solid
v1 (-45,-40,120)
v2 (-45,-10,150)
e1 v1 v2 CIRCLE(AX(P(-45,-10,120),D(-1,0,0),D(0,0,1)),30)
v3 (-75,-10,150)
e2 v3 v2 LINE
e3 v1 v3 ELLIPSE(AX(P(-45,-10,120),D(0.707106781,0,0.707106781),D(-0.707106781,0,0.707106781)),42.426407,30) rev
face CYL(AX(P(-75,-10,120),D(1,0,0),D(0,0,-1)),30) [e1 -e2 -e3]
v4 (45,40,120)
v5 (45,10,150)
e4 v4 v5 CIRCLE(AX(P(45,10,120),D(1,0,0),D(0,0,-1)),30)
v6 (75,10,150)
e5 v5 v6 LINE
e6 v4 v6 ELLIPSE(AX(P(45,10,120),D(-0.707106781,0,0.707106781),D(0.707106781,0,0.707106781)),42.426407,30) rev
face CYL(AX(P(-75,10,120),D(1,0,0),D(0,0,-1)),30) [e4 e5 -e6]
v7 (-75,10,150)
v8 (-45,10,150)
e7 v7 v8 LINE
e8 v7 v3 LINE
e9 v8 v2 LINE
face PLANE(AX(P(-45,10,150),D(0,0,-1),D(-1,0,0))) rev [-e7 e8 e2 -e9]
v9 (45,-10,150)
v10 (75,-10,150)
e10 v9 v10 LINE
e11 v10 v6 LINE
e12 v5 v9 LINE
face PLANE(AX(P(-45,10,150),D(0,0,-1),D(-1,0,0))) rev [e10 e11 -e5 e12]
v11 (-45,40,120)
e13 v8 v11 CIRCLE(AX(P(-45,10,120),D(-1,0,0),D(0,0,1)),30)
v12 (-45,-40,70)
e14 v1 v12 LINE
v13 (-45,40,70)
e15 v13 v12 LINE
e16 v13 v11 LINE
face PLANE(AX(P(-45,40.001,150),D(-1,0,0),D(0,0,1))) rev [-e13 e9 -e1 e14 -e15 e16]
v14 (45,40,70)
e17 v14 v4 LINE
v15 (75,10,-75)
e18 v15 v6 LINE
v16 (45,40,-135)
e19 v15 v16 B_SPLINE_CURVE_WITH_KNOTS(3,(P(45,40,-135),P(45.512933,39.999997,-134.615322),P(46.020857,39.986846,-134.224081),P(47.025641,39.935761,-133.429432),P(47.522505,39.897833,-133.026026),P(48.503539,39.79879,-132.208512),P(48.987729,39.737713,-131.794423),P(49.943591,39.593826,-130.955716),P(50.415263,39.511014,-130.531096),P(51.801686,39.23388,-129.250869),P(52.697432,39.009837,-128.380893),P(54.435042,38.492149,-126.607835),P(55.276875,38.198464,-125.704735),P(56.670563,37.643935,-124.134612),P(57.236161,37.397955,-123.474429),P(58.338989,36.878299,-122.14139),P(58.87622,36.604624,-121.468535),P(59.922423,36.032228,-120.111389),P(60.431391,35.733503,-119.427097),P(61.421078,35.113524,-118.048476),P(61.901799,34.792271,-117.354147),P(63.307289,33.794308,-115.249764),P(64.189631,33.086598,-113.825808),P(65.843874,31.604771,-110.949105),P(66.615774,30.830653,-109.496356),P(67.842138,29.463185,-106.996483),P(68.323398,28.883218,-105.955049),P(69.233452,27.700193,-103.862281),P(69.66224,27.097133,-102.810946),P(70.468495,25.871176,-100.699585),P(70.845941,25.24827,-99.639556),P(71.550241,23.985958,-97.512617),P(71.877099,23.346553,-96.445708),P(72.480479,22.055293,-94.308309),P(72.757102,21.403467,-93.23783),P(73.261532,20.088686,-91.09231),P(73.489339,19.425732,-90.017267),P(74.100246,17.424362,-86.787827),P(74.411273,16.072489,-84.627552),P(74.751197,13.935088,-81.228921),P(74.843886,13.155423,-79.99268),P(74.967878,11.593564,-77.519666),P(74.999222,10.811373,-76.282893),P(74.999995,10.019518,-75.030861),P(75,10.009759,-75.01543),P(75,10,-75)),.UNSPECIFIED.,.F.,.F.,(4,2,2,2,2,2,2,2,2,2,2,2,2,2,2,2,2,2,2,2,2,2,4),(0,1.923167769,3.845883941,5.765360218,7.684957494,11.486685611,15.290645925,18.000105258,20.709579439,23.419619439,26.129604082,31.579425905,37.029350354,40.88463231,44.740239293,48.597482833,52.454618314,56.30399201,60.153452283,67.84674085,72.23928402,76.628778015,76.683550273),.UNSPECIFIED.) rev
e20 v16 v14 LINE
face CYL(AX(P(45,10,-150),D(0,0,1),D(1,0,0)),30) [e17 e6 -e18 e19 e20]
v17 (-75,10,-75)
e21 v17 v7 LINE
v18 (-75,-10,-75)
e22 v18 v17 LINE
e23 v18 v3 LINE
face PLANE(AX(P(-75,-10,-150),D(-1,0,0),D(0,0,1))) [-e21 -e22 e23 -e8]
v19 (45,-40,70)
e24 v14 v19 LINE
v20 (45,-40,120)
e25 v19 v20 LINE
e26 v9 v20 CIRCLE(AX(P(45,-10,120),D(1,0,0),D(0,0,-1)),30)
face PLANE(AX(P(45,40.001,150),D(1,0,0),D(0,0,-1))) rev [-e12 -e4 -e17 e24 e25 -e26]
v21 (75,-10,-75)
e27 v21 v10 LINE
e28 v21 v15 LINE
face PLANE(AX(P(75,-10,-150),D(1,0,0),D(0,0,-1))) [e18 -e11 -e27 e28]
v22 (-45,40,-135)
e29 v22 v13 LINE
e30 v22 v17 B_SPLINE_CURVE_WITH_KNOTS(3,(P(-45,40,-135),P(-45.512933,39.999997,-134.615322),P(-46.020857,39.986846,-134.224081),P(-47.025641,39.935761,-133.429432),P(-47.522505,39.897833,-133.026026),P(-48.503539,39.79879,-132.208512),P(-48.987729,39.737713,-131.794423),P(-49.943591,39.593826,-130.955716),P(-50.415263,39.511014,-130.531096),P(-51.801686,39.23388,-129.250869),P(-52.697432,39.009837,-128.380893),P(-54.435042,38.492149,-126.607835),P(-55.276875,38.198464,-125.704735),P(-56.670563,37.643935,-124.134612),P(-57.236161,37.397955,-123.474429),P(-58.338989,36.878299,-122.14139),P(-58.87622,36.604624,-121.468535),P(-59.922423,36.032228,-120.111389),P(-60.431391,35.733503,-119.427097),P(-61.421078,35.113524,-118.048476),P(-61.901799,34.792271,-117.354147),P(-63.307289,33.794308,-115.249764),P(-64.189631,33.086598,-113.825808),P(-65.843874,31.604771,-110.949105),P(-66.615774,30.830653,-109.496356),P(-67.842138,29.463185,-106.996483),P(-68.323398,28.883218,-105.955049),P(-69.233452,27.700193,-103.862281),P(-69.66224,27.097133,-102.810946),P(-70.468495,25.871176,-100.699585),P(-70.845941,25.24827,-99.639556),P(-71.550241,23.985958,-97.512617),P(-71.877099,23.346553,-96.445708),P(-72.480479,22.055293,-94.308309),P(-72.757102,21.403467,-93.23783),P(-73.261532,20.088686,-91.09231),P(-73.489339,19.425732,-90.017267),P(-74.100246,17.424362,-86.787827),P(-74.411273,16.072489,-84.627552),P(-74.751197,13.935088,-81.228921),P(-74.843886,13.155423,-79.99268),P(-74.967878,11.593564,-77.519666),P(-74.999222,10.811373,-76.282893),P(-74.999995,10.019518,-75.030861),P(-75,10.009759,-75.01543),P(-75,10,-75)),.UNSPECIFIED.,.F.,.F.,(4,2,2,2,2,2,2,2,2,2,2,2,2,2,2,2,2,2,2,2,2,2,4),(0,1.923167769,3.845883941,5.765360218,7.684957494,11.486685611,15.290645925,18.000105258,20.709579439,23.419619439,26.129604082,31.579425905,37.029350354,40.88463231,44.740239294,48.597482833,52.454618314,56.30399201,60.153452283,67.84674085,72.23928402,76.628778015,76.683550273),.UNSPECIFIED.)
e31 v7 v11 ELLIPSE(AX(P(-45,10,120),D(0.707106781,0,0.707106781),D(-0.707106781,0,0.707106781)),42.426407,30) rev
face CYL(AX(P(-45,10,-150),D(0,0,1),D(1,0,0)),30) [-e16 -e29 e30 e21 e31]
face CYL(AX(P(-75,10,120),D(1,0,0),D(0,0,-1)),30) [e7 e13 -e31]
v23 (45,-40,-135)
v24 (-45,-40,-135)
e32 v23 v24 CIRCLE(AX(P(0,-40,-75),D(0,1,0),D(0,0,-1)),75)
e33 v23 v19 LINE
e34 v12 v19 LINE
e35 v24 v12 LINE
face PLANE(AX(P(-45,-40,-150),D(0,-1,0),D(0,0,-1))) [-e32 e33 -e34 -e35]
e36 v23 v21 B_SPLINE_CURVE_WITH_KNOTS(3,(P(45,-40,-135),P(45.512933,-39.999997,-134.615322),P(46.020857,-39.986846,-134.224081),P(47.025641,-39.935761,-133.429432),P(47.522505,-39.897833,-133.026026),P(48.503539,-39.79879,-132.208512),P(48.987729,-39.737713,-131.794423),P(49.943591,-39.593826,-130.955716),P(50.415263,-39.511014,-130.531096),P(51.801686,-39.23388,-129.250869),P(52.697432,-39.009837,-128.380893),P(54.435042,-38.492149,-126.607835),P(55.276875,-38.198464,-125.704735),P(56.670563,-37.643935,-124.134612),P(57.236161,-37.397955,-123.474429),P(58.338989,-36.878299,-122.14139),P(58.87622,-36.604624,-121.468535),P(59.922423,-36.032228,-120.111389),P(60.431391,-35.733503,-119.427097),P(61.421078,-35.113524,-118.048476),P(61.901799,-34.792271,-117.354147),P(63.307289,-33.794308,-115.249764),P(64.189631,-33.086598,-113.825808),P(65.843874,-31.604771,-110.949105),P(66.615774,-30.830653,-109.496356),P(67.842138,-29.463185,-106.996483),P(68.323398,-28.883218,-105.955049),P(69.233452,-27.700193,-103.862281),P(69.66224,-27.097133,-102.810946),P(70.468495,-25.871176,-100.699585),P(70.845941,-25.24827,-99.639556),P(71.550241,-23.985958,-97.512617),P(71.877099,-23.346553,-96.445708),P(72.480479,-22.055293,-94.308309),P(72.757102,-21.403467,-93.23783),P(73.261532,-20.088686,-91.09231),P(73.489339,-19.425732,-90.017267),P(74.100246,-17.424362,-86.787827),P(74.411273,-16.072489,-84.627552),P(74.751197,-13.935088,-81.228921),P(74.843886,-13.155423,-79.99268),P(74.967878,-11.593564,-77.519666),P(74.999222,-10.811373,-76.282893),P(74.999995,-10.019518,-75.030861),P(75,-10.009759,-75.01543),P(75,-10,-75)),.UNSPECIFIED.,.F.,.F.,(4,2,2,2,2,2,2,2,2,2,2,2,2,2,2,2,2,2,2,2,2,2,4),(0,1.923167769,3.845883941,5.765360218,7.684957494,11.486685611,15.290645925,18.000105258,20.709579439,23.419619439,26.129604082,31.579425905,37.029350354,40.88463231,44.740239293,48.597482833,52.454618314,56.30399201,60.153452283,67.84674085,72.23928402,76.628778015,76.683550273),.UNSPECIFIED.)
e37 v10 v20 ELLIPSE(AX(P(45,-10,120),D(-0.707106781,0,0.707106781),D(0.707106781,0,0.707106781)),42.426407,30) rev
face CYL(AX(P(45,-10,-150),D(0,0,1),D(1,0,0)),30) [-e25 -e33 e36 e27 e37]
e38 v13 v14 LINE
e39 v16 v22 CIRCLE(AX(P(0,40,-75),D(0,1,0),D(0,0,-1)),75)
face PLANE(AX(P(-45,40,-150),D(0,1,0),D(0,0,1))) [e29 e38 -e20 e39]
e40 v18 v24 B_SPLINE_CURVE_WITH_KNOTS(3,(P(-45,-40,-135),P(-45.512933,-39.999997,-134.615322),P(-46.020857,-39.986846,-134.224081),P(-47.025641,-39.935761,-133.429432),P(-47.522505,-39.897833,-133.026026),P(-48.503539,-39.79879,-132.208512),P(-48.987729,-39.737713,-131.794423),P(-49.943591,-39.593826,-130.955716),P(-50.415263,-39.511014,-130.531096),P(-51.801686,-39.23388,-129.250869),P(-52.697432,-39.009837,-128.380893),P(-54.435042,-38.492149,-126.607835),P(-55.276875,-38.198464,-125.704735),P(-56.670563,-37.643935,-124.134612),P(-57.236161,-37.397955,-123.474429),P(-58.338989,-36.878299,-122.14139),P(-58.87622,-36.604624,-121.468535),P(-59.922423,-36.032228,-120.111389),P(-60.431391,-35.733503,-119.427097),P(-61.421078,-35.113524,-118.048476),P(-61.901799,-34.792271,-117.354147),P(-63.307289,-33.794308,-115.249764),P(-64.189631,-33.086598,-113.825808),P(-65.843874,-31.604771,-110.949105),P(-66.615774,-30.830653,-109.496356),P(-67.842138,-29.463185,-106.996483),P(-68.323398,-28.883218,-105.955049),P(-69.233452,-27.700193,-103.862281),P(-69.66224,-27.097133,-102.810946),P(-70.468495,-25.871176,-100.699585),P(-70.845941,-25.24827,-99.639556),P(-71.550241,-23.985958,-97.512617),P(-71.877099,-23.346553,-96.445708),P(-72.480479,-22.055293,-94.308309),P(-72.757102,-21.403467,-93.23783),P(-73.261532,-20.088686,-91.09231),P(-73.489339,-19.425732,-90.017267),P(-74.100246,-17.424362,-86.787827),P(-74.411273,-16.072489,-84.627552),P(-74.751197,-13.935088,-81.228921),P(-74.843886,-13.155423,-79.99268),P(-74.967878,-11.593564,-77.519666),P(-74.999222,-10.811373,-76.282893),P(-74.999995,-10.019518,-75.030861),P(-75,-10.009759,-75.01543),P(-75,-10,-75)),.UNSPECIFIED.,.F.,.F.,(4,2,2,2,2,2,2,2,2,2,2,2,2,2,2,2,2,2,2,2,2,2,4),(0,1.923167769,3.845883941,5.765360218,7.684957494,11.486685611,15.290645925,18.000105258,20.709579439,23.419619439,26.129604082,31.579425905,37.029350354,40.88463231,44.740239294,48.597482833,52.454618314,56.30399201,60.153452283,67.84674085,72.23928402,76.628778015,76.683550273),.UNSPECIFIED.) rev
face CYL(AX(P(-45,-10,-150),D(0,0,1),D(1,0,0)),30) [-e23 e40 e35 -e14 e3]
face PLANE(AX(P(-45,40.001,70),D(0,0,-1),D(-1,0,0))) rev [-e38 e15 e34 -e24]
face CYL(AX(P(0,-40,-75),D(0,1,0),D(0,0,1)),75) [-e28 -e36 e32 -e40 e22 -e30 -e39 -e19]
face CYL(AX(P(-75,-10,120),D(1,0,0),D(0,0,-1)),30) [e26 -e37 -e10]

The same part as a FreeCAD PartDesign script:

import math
import FreeCAD as App
import Part
import Sketcher

V = App.Vector
Q = App.Units.Quantity

doc = App.newDocument("Part")
body = doc.addObject("PartDesign::Body", "Body")

sketch1 = doc.addObject("Sketcher::SketchObject", "Sketch")
body.addObject(sketch1)
sketch1.AttachmentSupport = (doc.XY_Plane, [""])
sketch1.MapMode = "FlatFace"
sketch1.addGeometry([
    Part.LineSegment(V(-45, -40, 0), V(45, -40, 0)),
    Part.ArcOfCircle(Part.Circle(V(45, -10, 0), V(0, 0, 1), 30), math.radians(-90), math.radians(0)),
    Part.LineSegment(V(75, -10, 0), V(75, 10, 0)),
    Part.ArcOfCircle(Part.Circle(V(45, 10, 0), V(0, 0, 1), 30), math.radians(0), math.radians(90)),
    Part.LineSegment(V(45, 40, 0), V(-45, 40, 0)),
    Part.ArcOfCircle(Part.Circle(V(-45, 10, 0), V(0, 0, 1), 30), math.radians(90), math.radians(180)),
    Part.LineSegment(V(-75, 10, 0), V(-75, -10, 0)),
    Part.ArcOfCircle(Part.Circle(V(-45, -10, 0), V(0, 0, 1), 30), math.radians(180), math.radians(270)),
], False)
sketch1.addConstraint([
    Sketcher.Constraint("Tangent", 0, 2, 1, 1),
    Sketcher.Constraint("Tangent", 1, 2, 2, 1),
    Sketcher.Constraint("Tangent", 2, 2, 3, 1),
    Sketcher.Constraint("Tangent", 3, 2, 4, 1),
    Sketcher.Constraint("Tangent", 4, 2, 5, 1),
    Sketcher.Constraint("Tangent", 5, 2, 6, 1),
    Sketcher.Constraint("Tangent", 6, 2, 7, 1),
    Sketcher.Constraint("Tangent", 7, 2, 0, 1),
    Sketcher.Constraint("Horizontal", 0),
    Sketcher.Constraint("Vertical", 2),
    Sketcher.Constraint("Horizontal", 4),
    Sketcher.Constraint("Vertical", 6),
    Sketcher.Constraint("Equal", 1, 3),
    Sketcher.Constraint("Equal", 3, 5),
    Sketcher.Constraint("Equal", 5, 7),
    Sketcher.Constraint("Symmetric", 1, 3, 5, 3, -1, 1),
    Sketcher.Constraint("Radius", 1, Q("30 mm")),
    Sketcher.Constraint("DistanceX", 0, 1, 0, 2, Q("90 mm")),
    Sketcher.Constraint("DistanceY", 2, 1, 2, 2, Q("20 mm")),
])
pad1 = doc.addObject("PartDesign::Pad", "Pad")
body.addObject(pad1)
pad1.Profile = sketch1
pad1.Type = "TwoLengths"
pad1.Length = 150
pad1.Length2 = 150

sketch2 = doc.addObject("Sketcher::SketchObject", "Sketch001")
body.addObject(sketch2)
sketch2.AttachmentSupport = (doc.YZ_Plane, [""])
sketch2.MapMode = "FlatFace"
sketch2.AttachmentOffset = App.Placement(V(0, 0, 75), App.Rotation())
sketch2.addGeometry([
    Part.LineSegment(V(75, 185, 0), V(-75, 185, 0)),
    Part.LineSegment(V(-75, 185, 0), V(-75, -185, 0)),
    Part.LineSegment(V(-75, -185, 0), V(75, -185, 0)),
    Part.LineSegment(V(75, -185, 0), V(75, 185, 0)),
    Part.LineSegment(V(40, 120, 0), V(40, -150, 0)),
    Part.LineSegment(V(40, -150, 0), V(-40, -150, 0)),
    Part.LineSegment(V(-40, -150, 0), V(-40, 120, 0)),
    Part.ArcOfCircle(Part.Circle(V(-10, 120, 0), V(0, 0, 1), 30), math.radians(90), math.radians(180)),
    Part.LineSegment(V(-10, 150, 0), V(10, 150, 0)),
    Part.ArcOfCircle(Part.Circle(V(10, 120, 0), V(0, 0, 1), 30), math.radians(0), math.radians(90)),
], False)
sketch2.addConstraint([
    Sketcher.Constraint("Coincident", 0, 2, 1, 1),
    Sketcher.Constraint("Coincident", 1, 2, 2, 1),
    Sketcher.Constraint("Coincident", 2, 2, 3, 1),
    Sketcher.Constraint("Coincident", 3, 2, 0, 1),
    Sketcher.Constraint("Coincident", 4, 2, 5, 1),
    Sketcher.Constraint("Coincident", 5, 2, 6, 1),
    Sketcher.Constraint("Tangent", 6, 2, 7, 2),
    Sketcher.Constraint("Tangent", 7, 1, 8, 1),
    Sketcher.Constraint("Tangent", 8, 2, 9, 2),
    Sketcher.Constraint("Tangent", 9, 1, 4, 1),
    Sketcher.Constraint("Horizontal", 0),
    Sketcher.Constraint("Vertical", 1),
    Sketcher.Constraint("Horizontal", 2),
    Sketcher.Constraint("Vertical", 3),
    Sketcher.Constraint("Vertical", 4),
    Sketcher.Constraint("Horizontal", 5),
    Sketcher.Constraint("Vertical", 6),
    Sketcher.Constraint("Horizontal", 8),
    Sketcher.Constraint("Equal", 7, 9),
    Sketcher.Constraint("Symmetric", 0, 2, 2, 2, -1, 1),
    Sketcher.Constraint("Radius", 7, Q("30 mm")),
    Sketcher.Constraint("DistanceX", 5, 2, 5, 1, Q("80 mm")),
    Sketcher.Constraint("DistanceY", 4, 2, 4, 1, Q("270 mm")),
    Sketcher.Constraint("DistanceX", 7, 3, -1, 1, Q("10 mm")),
    Sketcher.Constraint("DistanceY", -1, 1, 7, 3, Q("120 mm")),
    Sketcher.Constraint("DistanceX", 0, 2, 0, 1, Q("150.964 mm")),
    Sketcher.Constraint("DistanceY", 1, 2, 1, 1, Q("370.964 mm")),
])
pocket1 = doc.addObject("PartDesign::Pocket", "Pocket")
body.addObject(pocket1)
pocket1.Profile = sketch2
pocket1.Length = 150

sketch3 = doc.addObject("Sketcher::SketchObject", "Sketch002")
body.addObject(sketch3)
sketch3.AttachmentSupport = (doc.XZ_Plane, [""])
sketch3.MapMode = "FlatFace"
sketch3.AttachmentOffset = App.Placement(V(0, 0, 40), App.Rotation())
sketch3.addGeometry([
    Part.LineSegment(V(45, 150, 0), V(-45, 150, 0)),
    Part.LineSegment(V(-45, 150, 0), V(-45, 70, 0)),
    Part.LineSegment(V(-45, 70, 0), V(45, 70, 0)),
    Part.LineSegment(V(45, 70, 0), V(45, 150, 0)),
], False)
sketch3.addConstraint([
    Sketcher.Constraint("Coincident", 0, 2, 1, 1),
    Sketcher.Constraint("Coincident", 1, 2, 2, 1),
    Sketcher.Constraint("Coincident", 2, 2, 3, 1),
    Sketcher.Constraint("Coincident", 3, 2, 0, 1),
    Sketcher.Constraint("Horizontal", 0),
    Sketcher.Constraint("Vertical", 1),
    Sketcher.Constraint("Horizontal", 2),
    Sketcher.Constraint("Vertical", 3),
    Sketcher.Constraint("DistanceX", 0, 2, 0, 1, Q("90 mm")),
    Sketcher.Constraint("DistanceY", 1, 2, 1, 1, Q("80 mm")),
    Sketcher.Constraint("DistanceX", 0, 2, -1, 1, Q("45 mm")),
    Sketcher.Constraint("DistanceY", -1, 1, 0, 2, Q("150 mm")),
])
pocket2 = doc.addObject("PartDesign::Pocket", "Pocket001")
body.addObject(pocket2)
pocket2.Profile = sketch3
pocket2.Type = "UpToFirst"

sketch4 = doc.addObject("Sketcher::SketchObject", "Sketch003")
body.addObject(sketch4)
sketch4.AttachmentSupport = (doc.XZ_Plane, [""])
sketch4.MapMode = "FlatFace"
sketch4.AttachmentOffset = App.Placement(V(0, 0, -40), App.Rotation())
sketch4.addGeometry([
    Part.LineSegment(V(-110, -185, 0), V(-110, 185, 0)),
    Part.LineSegment(V(-110, 185, 0), V(110, 185, 0)),
    Part.LineSegment(V(110, 185, 0), V(110, -185, 0)),
    Part.LineSegment(V(110, -185, 0), V(-110, -185, 0)),
    Part.LineSegment(V(-75, 150, 0), V(-75, -75, 0)),
    Part.ArcOfCircle(Part.Circle(V(0, -75, 0), V(0, 0, 1), 75), math.radians(180), math.radians(360)),
    Part.LineSegment(V(75, -75, 0), V(75, 150, 0)),
    Part.LineSegment(V(75, 150, 0), V(-75, 150, 0)),
], False)
sketch4.addConstraint([
    Sketcher.Constraint("Coincident", 0, 2, 1, 1),
    Sketcher.Constraint("Coincident", 1, 2, 2, 1),
    Sketcher.Constraint("Coincident", 2, 2, 3, 1),
    Sketcher.Constraint("Coincident", 3, 2, 0, 1),
    Sketcher.Constraint("Tangent", 4, 2, 5, 1),
    Sketcher.Constraint("Tangent", 5, 2, 6, 1),
    Sketcher.Constraint("Coincident", 6, 2, 7, 1),
    Sketcher.Constraint("Coincident", 7, 2, 4, 1),
    Sketcher.Constraint("Vertical", 0),
    Sketcher.Constraint("Horizontal", 1),
    Sketcher.Constraint("Vertical", 2),
    Sketcher.Constraint("Horizontal", 3),
    Sketcher.Constraint("Vertical", 4),
    Sketcher.Constraint("Vertical", 6),
    Sketcher.Constraint("Horizontal", 7),
    Sketcher.Constraint("Symmetric", 0, 2, 2, 2, -1, 1),
    Sketcher.Constraint("PointOnObject", 5, 3, -2),
    Sketcher.Constraint("Radius", 5, Q("75 mm")),
    Sketcher.Constraint("DistanceY", 4, 2, 4, 1, Q("225 mm")),
    Sketcher.Constraint("DistanceY", 5, 3, -1, 1, Q("75 mm")),
    Sketcher.Constraint("DistanceX", 1, 1, 1, 2, Q("220.964 mm")),
    Sketcher.Constraint("DistanceY", 0, 1, 0, 2, Q("370.964 mm")),
])
pocket3 = doc.addObject("PartDesign::Pocket", "Pocket002")
body.addObject(pocket3)
pocket3.Profile = sketch4
pocket3.Type = "ThroughAll"
pocket3.Reversed = True

doc.recompute()
